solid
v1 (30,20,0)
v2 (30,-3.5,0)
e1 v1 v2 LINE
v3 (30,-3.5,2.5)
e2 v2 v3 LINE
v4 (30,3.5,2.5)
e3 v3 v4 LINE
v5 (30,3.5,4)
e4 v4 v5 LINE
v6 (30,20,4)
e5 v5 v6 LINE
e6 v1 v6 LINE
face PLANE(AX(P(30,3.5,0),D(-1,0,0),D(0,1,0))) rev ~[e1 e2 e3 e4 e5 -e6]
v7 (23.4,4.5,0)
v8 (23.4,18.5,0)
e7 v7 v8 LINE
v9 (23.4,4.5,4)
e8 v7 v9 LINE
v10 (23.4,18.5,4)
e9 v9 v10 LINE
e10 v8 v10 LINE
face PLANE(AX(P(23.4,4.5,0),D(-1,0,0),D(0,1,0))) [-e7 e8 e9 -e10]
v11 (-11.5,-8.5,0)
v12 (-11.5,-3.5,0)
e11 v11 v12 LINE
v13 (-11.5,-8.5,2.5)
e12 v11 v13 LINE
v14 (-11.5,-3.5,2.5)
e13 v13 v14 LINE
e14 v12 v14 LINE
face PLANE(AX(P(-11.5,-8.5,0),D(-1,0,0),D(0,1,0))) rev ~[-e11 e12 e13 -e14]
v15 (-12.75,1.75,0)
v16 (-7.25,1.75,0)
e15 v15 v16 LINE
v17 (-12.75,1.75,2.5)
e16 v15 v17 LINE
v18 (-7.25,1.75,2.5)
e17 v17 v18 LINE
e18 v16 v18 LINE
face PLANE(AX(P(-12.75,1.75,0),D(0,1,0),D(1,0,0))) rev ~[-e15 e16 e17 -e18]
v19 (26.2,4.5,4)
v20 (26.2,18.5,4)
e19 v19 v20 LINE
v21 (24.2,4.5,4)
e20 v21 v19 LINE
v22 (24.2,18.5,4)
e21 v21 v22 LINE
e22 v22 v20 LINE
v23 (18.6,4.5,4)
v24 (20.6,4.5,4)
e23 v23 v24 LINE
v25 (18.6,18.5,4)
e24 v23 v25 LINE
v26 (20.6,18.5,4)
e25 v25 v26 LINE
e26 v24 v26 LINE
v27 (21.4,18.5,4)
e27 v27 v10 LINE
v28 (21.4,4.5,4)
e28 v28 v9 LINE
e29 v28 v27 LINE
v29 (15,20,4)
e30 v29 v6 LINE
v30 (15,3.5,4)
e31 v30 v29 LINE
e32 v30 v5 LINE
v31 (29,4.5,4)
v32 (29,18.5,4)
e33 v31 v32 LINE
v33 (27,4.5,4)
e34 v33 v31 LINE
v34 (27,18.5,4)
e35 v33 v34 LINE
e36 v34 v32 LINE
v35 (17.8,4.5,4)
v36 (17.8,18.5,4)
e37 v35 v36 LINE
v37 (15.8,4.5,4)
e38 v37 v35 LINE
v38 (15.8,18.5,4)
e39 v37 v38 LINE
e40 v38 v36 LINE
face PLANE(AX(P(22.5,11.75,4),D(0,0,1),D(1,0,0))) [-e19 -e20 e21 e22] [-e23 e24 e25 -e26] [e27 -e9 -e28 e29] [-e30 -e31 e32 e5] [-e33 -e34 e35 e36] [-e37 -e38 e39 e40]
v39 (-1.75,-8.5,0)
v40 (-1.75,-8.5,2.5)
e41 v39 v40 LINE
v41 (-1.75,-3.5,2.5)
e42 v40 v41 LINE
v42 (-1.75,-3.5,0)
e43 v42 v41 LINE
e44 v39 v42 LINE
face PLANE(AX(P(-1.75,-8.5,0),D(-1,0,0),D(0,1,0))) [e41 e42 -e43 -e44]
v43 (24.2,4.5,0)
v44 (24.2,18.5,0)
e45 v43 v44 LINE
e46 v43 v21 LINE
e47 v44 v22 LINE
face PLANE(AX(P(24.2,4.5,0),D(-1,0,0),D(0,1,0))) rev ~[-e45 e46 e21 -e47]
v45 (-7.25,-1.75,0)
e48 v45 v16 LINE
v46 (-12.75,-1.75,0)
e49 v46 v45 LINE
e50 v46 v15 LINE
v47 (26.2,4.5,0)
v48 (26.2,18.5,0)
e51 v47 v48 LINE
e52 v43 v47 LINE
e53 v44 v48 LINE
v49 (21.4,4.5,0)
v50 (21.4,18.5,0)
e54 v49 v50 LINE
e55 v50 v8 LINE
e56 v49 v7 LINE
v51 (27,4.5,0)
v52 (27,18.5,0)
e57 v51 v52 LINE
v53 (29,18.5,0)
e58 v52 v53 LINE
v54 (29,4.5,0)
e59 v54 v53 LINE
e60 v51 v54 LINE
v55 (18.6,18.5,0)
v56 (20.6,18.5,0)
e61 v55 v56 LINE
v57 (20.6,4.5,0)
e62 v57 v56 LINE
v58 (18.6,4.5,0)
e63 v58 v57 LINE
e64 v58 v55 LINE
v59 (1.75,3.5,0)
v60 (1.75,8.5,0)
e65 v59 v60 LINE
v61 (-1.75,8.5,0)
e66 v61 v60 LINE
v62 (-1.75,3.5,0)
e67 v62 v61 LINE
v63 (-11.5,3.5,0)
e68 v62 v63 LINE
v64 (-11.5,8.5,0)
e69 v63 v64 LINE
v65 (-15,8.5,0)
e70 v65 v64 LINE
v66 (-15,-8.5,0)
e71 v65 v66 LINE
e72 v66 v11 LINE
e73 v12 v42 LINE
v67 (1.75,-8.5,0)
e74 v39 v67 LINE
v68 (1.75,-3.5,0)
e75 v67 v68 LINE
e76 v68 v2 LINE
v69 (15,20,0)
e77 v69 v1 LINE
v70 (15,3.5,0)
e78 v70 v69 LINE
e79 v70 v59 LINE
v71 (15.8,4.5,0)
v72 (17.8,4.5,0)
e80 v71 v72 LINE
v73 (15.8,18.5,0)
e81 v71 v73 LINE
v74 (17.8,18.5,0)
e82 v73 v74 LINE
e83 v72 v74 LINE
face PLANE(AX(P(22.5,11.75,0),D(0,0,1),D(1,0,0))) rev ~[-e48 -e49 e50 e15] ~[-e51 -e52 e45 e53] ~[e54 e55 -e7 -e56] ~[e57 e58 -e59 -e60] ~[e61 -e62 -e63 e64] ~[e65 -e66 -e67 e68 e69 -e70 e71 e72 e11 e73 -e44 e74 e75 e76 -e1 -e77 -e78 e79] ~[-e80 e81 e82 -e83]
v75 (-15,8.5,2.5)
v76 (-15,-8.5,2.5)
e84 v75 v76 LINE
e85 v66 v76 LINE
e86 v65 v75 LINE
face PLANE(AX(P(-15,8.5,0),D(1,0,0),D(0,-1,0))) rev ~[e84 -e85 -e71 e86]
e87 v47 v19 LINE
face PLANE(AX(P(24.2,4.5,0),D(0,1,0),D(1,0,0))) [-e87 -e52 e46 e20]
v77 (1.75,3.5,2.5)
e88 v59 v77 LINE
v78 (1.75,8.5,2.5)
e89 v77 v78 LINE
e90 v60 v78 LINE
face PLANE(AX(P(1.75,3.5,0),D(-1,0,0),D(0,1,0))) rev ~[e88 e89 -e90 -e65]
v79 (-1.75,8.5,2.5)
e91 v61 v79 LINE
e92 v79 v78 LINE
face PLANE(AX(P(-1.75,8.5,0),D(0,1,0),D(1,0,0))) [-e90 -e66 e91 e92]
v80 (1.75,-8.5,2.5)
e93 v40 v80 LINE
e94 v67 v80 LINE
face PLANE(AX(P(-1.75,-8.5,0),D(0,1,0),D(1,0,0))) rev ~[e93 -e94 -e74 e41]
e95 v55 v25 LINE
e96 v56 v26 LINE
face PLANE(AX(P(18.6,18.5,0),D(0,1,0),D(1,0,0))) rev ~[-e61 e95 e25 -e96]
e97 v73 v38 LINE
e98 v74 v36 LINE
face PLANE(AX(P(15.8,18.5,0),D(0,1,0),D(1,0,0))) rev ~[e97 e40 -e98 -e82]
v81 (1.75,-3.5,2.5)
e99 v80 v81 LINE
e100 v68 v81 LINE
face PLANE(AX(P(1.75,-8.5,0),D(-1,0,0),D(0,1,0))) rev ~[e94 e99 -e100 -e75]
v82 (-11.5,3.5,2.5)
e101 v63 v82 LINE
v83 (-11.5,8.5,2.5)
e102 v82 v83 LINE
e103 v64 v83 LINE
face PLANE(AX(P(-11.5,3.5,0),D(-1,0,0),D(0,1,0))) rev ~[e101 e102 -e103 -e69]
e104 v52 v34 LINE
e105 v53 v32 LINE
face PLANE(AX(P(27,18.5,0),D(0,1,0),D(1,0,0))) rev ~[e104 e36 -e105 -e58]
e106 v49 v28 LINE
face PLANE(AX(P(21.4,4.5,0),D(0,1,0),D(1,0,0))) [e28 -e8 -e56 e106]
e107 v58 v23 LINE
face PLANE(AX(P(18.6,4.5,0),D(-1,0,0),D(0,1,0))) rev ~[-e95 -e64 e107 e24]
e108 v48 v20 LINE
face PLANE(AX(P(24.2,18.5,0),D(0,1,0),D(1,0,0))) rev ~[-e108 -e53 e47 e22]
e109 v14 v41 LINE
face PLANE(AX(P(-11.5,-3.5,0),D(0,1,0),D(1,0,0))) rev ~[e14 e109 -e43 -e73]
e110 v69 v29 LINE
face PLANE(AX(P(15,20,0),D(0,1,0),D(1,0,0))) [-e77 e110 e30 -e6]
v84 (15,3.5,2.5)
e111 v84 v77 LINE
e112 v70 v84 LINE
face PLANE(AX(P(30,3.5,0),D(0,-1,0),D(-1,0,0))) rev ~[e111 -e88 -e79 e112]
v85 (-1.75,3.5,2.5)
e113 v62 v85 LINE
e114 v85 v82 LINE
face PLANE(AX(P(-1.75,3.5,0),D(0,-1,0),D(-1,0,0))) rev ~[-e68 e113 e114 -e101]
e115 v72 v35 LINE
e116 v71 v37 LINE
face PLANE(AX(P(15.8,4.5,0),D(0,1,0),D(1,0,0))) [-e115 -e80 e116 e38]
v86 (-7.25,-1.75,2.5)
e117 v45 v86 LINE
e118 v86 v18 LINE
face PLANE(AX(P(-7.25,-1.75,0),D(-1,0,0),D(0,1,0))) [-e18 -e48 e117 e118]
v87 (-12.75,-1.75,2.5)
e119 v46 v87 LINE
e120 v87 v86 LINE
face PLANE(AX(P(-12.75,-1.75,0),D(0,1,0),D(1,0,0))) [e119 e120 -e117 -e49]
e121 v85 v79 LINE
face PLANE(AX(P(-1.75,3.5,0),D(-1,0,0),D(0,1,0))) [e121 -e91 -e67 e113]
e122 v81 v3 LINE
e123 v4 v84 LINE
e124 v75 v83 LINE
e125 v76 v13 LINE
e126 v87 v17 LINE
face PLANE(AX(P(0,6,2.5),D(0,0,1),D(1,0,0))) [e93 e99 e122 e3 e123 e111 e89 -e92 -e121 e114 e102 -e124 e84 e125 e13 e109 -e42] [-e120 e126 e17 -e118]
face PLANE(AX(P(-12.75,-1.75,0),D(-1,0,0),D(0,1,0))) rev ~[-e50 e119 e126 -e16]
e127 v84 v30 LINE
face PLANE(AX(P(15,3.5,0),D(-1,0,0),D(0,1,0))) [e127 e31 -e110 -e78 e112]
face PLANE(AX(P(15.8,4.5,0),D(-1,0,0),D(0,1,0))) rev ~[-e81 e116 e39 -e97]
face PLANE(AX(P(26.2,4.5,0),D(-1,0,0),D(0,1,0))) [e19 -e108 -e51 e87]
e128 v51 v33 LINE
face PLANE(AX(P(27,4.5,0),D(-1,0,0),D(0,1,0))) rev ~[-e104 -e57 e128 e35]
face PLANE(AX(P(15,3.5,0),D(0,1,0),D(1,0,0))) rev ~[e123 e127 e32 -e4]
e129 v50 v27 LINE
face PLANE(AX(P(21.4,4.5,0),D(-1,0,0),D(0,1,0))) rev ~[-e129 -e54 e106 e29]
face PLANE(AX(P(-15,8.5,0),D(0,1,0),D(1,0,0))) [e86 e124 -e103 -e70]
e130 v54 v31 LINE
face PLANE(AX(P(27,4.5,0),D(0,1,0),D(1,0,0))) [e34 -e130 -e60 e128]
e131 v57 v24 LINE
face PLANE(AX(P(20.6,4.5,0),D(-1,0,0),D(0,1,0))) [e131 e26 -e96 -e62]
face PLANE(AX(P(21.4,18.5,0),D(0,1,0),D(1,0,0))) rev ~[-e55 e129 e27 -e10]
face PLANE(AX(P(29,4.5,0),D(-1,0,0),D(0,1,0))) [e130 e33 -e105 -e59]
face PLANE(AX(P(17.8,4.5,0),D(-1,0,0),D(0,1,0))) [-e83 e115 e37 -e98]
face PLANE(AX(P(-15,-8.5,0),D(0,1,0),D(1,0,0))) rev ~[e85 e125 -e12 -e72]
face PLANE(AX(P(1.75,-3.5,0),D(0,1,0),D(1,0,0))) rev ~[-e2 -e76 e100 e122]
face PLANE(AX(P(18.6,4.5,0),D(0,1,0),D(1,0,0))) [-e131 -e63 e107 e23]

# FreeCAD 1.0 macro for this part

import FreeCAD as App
import Part
import Sketcher
Q = App.Units.Quantity

doc = App.newDocument("Part")
body = doc.addObject("PartDesign::Body", "Body")

# Sketch on XY plane
sketch1 = body.newObject("Sketcher::SketchObject", "Sketch")
sketch1.AttachmentSupport = (doc.getObject("XY_Plane"), [""])
sketch1.MapMode = "FlatFace"
sketch1.addGeometry([
    Part.LineSegment(App.Vector(1.8, 3.5, 0), App.Vector(1.8, 8.5, 0)),  # 0
    Part.LineSegment(App.Vector(1.8, 8.5, 0), App.Vector(-1.8, 8.5, 0)),  # 1
    Part.LineSegment(App.Vector(-1.8, 8.5, 0), App.Vector(-1.8, 3.5, 0)),  # 2
    Part.LineSegment(App.Vector(-1.8, 3.5, 0), App.Vector(-11.5, 3.5, 0)),  # 3
    Part.LineSegment(App.Vector(-11.5, 3.5, 0), App.Vector(-11.5, 8.5, 0)),  # 4
    Part.LineSegment(App.Vector(-11.5, 8.5, 0), App.Vector(-15, 8.5, 0)),  # 5
    Part.LineSegment(App.Vector(-15, 8.5, 0), App.Vector(-15, -8.5, 0)),  # 6
    Part.LineSegment(App.Vector(-15, -8.5, 0), App.Vector(-11.5, -8.5, 0)),  # 7
    Part.LineSegment(App.Vector(-11.5, -8.5, 0), App.Vector(-11.5, -3.5, 0)),  # 8
    Part.LineSegment(App.Vector(-11.5, -3.5, 0), App.Vector(-1.8, -3.5, 0)),  # 9
    Part.LineSegment(App.Vector(-1.8, -3.5, 0), App.Vector(-1.8, -8.5, 0)),  # 10
    Part.LineSegment(App.Vector(-1.8, -8.5, 0), App.Vector(1.8, -8.5, 0)),  # 11
    Part.LineSegment(App.Vector(1.8, -8.5, 0), App.Vector(1.8, -3.5, 0)),  # 12
    Part.LineSegment(App.Vector(1.8, -3.5, 0), App.Vector(30, -3.5, 0)),  # 13
    Part.LineSegment(App.Vector(30, -3.5, 0), App.Vector(30, 3.5, 0)),  # 14
    Part.LineSegment(App.Vector(30, 3.5, 0), App.Vector(1.8, 3.5, 0)),  # 15
    Part.LineSegment(App.Vector(-7.2, -1.8, 0), App.Vector(-12.8, -1.8, 0)),  # 16
    Part.LineSegment(App.Vector(-12.8, -1.8, 0), App.Vector(-12.8, 1.8, 0)),  # 17
    Part.LineSegment(App.Vector(-12.8, 1.8, 0), App.Vector(-7.2, 1.8, 0)),  # 18
    Part.LineSegment(App.Vector(-7.2, 1.8, 0), App.Vector(-7.2, -1.8, 0)),  # 19
], False)
sketch1.addConstraint([
    Sketcher.Constraint("Coincident", 0, 2, 1, 1),
    Sketcher.Constraint("Coincident", 1, 2, 2, 1),
    Sketcher.Constraint("Coincident", 2, 2, 3, 1),
    Sketcher.Constraint("Coincident", 3, 2, 4, 1),
    Sketcher.Constraint("Coincident", 4, 2, 5, 1),
    Sketcher.Constraint("Coincident", 5, 2, 6, 1),
    Sketcher.Constraint("Coincident", 6, 2, 7, 1),
    Sketcher.Constraint("Coincident", 7, 2, 8, 1),
    Sketcher.Constraint("Coincident", 8, 2, 9, 1),
    Sketcher.Constraint("Coincident", 9, 2, 10, 1),
    Sketcher.Constraint("Coincident", 10, 2, 11, 1),
    Sketcher.Constraint("Coincident", 11, 2, 12, 1),
    Sketcher.Constraint("Coincident", 12, 2, 13, 1),
    Sketcher.Constraint("Coincident", 13, 2, 14, 1),
    Sketcher.Constraint("Coincident", 14, 2, 15, 1),
    Sketcher.Constraint("Coincident", 15, 2, 0, 1),
    Sketcher.Constraint("Coincident", 16, 2, 17, 1),
    Sketcher.Constraint("Coincident", 17, 2, 18, 1),
    Sketcher.Constraint("Coincident", 18, 2, 19, 1),
    Sketcher.Constraint("Coincident", 19, 2, 16, 1),
    Sketcher.Constraint("Vertical", 0),
    Sketcher.Constraint("Horizontal", 1),
    Sketcher.Constraint("Vertical", 2),
    Sketcher.Constraint("Horizontal", 3),
    Sketcher.Constraint("Vertical", 4),
    Sketcher.Constraint("Horizontal", 5),
    Sketcher.Constraint("Vertical", 6),
    Sketcher.Constraint("Horizontal", 7),
    Sketcher.Constraint("Vertical", 8),
    Sketcher.Constraint("Horizontal", 9),
    Sketcher.Constraint("Vertical", 10),
    Sketcher.Constraint("Horizontal", 11),
    Sketcher.Constraint("Vertical", 12),
    Sketcher.Constraint("Horizontal", 13),
    Sketcher.Constraint("Vertical", 14),
    Sketcher.Constraint("Horizontal", 15),
    Sketcher.Constraint("Horizontal", 16),
    Sketcher.Constraint("Vertical", 17),
    Sketcher.Constraint("Horizontal", 18),
    Sketcher.Constraint("Vertical", 19),
    Sketcher.Constraint("Symmetric", 0, 2, 10, 2, -1, 1),
    Sketcher.Constraint("Symmetric", 2, 2, 12, 2, -1, 1),
    Sketcher.Constraint("Symmetric", 9, 2, 12, 2, -2),
    Sketcher.Constraint("Symmetric", 4, 2, 7, 2, -1),
    Sketcher.Constraint("Horizontal", 1, 2, 4, 2),
    Sketcher.Constraint("Horizontal", 3, 2, 14, 2),
    Sketcher.Constraint("Equal", 1, 5),
    Sketcher.Constraint("Equal", 11, 17),
    Sketcher.Constraint("DistanceY", 0, 1, 0, 2, Q("5 mm")),
    Sketcher.Constraint("DistanceY", 6, 2, 6, 1, Q("17 mm")),
    Sketcher.Constraint("DistanceX", 1, 2, 1, 1, Q("3.5 mm")),
    Sketcher.Constraint("DistanceX", 16, 2, 16, 1, Q("5.5 mm")),
    Sketcher.Constraint("DistanceX", 5, 2, -1, 1, Q("15 mm")),
    Sketcher.Constraint("DistanceX", -1, 1, 13, 2, Q("30 mm")),
    Sketcher.Constraint("DistanceX", 18, 2, 2, 2, Q("5.5 mm")),
    Sketcher.Constraint("DistanceY", 16, 2, -1, 1, Q("1.75 mm")),
])
pad1 = body.newObject("PartDesign::Pad", "Pad")
pad1.Profile = sketch1
pad1.Length = 2.5

# Sketch on XY plane
sketch2 = body.newObject("Sketcher::SketchObject", "Sketch001")
sketch2.AttachmentSupport = (doc.getObject("XY_Plane"), [""])
sketch2.MapMode = "FlatFace"
sketch2.addGeometry([
    Part.LineSegment(App.Vector(15, 20, 0), App.Vector(15, 3.5, 0)),  # 0
    Part.LineSegment(App.Vector(15, 3.5, 0), App.Vector(30, 3.5, 0)),  # 1
    Part.LineSegment(App.Vector(30, 3.5, 0), App.Vector(30, 20, 0)),  # 2
    Part.LineSegment(App.Vector(30, 20, 0), App.Vector(15, 20, 0)),  # 3
    Part.LineSegment(App.Vector(17.8, 4.5, 0), App.Vector(15.8, 4.5, 0)),  # 4
    Part.LineSegment(App.Vector(15.8, 4.5, 0), App.Vector(15.8, 18.5, 0)),  # 5
    Part.LineSegment(App.Vector(15.8, 18.5, 0), App.Vector(17.8, 18.5, 0)),  # 6
    Part.LineSegment(App.Vector(17.8, 18.5, 0), App.Vector(17.8, 4.5, 0)),  # 7
    Part.LineSegment(App.Vector(20.6, 4.5, 0), App.Vector(18.6, 4.5, 0)),  # 8
    Part.LineSegment(App.Vector(18.6, 4.5, 0), App.Vector(18.6, 18.5, 0)),  # 9
    Part.LineSegment(App.Vector(18.6, 18.5, 0), App.Vector(20.6, 18.5, 0)),  # 10
    Part.LineSegment(App.Vector(20.6, 18.5, 0), App.Vector(20.6, 4.5, 0)),  # 11
    Part.LineSegment(App.Vector(23.4, 4.5, 0), App.Vector(21.4, 4.5, 0)),  # 12
    Part.LineSegment(App.Vector(21.4, 4.5, 0), App.Vector(21.4, 18.5, 0)),  # 13
    Part.LineSegment(App.Vector(21.4, 18.5, 0), App.Vector(23.4, 18.5, 0)),  # 14
    Part.LineSegment(App.Vector(23.4, 18.5, 0), App.Vector(23.4, 4.5, 0)),  # 15
    Part.LineSegment(App.Vector(26.2, 4.5, 0), App.Vector(24.2, 4.5, 0)),  # 16
    Part.LineSegment(App.Vector(24.2, 4.5, 0), App.Vector(24.2, 18.5, 0)),  # 17
    Part.LineSegment(App.Vector(24.2, 18.5, 0), App.Vector(26.2, 18.5, 0)),  # 18
    Part.LineSegment(App.Vector(26.2, 18.5, 0), App.Vector(26.2, 4.5, 0)),  # 19
    Part.LineSegment(App.Vector(29, 4.5, 0), App.Vector(27, 4.5, 0)),  # 20
    Part.LineSegment(App.Vector(27, 4.5, 0), App.Vector(27, 18.5, 0)),  # 21
    Part.LineSegment(App.Vector(27, 18.5, 0), App.Vector(29, 18.5, 0)),  # 22
    Part.LineSegment(App.Vector(29, 18.5, 0), App.Vector(29, 4.5, 0)),  # 23
], False)
sketch2.addConstraint([
    Sketcher.Constraint("Coincident", 0, 2, 1, 1),
    Sketcher.Constraint("Coincident", 1, 2, 2, 1),
    Sketcher.Constraint("Coincident", 2, 2, 3, 1),
    Sketcher.Constraint("Coincident", 3, 2, 0, 1),
    Sketcher.Constraint("Coincident", 4, 2, 5, 1),
    Sketcher.Constraint("Coincident", 5, 2, 6, 1),
    Sketcher.Constraint("Coincident", 6, 2, 7, 1),
    Sketcher.Constraint("Coincident", 7, 2, 4, 1),
    Sketcher.Constraint("Coincident", 8, 2, 9, 1),
    Sketcher.Constraint("Coincident", 9, 2, 10, 1),
    Sketcher.Constraint("Coincident", 10, 2, 11, 1),
    Sketcher.Constraint("Coincident", 11, 2, 8, 1),
    Sketcher.Constraint("Coincident", 12, 2, 13, 1),
    Sketcher.Constraint("Coincident", 13, 2, 14, 1),
    Sketcher.Constraint("Coincident", 14, 2, 15, 1),
    Sketcher.Constraint("Coincident", 15, 2, 12, 1),
    Sketcher.Constraint("Coincident", 16, 2, 17, 1),
    Sketcher.Constraint("Coincident", 17, 2, 18, 1),
    Sketcher.Constraint("Coincident", 18, 2, 19, 1),
    Sketcher.Constraint("Coincident", 19, 2, 16, 1),
    Sketcher.Constraint("Coincident", 20, 2, 21, 1),
    Sketcher.Constraint("Coincident", 21, 2, 22, 1),
    Sketcher.Constraint("Coincident", 22, 2, 23, 1),
    Sketcher.Constraint("Coincident", 23, 2, 20, 1),
    Sketcher.Constraint("Vertical", 0),
    Sketcher.Constraint("Horizontal", 1),
    Sketcher.Constraint("Vertical", 2),
    Sketcher.Constraint("Horizontal", 3),
    Sketcher.Constraint("Horizontal", 4),
    Sketcher.Constraint("Vertical", 5),
    Sketcher.Constraint("Horizontal", 6),
    Sketcher.Constraint("Vertical", 7),
    Sketcher.Constraint("Horizontal", 8),
    Sketcher.Constraint("Vertical", 9),
    Sketcher.Constraint("Horizontal", 10),
    Sketcher.Constraint("Vertical", 11),
    Sketcher.Constraint("Horizontal", 12),
    Sketcher.Constraint("Vertical", 13),
    Sketcher.Constraint("Horizontal", 14),
    Sketcher.Constraint("Vertical", 15),
    Sketcher.Constraint("Horizontal", 16),
    Sketcher.Constraint("Vertical", 17),
    Sketcher.Constraint("Horizontal", 18),
    Sketcher.Constraint("Vertical", 19),
    Sketcher.Constraint("Horizontal", 20),
    Sketcher.Constraint("Vertical", 21),
    Sketcher.Constraint("Horizontal", 22),
    Sketcher.Constraint("Vertical", 23),
    Sketcher.Constraint("Horizontal", 7, 2, 8, 2),
    Sketcher.Constraint("Horizontal", 6, 2, 9, 2),
    Sketcher.Constraint("Horizontal", 11, 2, 12, 2),
    Sketcher.Constraint("Horizontal", 10, 2, 13, 2),
    Sketcher.Constraint("Horizontal", 15, 2, 16, 2),
    Sketcher.Constraint("Horizontal", 14, 2, 17, 2),
    Sketcher.Constraint("Horizontal", 19, 2, 20, 2),
    Sketcher.Constraint("Horizontal", 18, 2, 21, 2),
    Sketcher.Constraint("Equal", 6, 8),
    Sketcher.Constraint("Equal", 10, 12),
    Sketcher.Constraint("Equal", 14, 16),
    Sketcher.Constraint("Equal", 18, 20),
    Sketcher.Constraint("DistanceX", 1, 1, 1, 2, Q("15 mm")),
    Sketcher.Constraint("DistanceX", 4, 2, 4, 1, Q("2 mm")),
    Sketcher.Constraint("DistanceY", 5, 1, 5, 2, Q("14 mm")),
    Sketcher.Constraint("DistanceY", 0, 2, 0, 1, Q("16.5 mm")),
    Sketcher.Constraint("DistanceX", -1, 1, 0, 2, Q("15 mm")),
    Sketcher.Constraint("DistanceY", -1, 1, 2, 2, Q("20 mm")),
    Sketcher.Constraint("DistanceX", -1, 1, 20, 2, Q("27 mm")),
    Sketcher.Constraint("DistanceY", 0, 2, 4, 2, Q("1 mm")),
    Sketcher.Constraint("DistanceX", -1, 1, 4, 2, Q("15.8 mm")),
    Sketcher.Constraint("DistanceX", -1, 1, 8, 2, Q("18.6 mm")),
    Sketcher.Constraint("DistanceX", -1, 1, 12, 2, Q("21.4 mm")),
    Sketcher.Constraint("DistanceX", -1, 1, 16, 2, Q("24.2 mm")),
])
pad2 = body.newObject("PartDesign::Pad", "Pad001")
pad2.Profile = sketch2
pad2.Length = 4

doc.recompute()
